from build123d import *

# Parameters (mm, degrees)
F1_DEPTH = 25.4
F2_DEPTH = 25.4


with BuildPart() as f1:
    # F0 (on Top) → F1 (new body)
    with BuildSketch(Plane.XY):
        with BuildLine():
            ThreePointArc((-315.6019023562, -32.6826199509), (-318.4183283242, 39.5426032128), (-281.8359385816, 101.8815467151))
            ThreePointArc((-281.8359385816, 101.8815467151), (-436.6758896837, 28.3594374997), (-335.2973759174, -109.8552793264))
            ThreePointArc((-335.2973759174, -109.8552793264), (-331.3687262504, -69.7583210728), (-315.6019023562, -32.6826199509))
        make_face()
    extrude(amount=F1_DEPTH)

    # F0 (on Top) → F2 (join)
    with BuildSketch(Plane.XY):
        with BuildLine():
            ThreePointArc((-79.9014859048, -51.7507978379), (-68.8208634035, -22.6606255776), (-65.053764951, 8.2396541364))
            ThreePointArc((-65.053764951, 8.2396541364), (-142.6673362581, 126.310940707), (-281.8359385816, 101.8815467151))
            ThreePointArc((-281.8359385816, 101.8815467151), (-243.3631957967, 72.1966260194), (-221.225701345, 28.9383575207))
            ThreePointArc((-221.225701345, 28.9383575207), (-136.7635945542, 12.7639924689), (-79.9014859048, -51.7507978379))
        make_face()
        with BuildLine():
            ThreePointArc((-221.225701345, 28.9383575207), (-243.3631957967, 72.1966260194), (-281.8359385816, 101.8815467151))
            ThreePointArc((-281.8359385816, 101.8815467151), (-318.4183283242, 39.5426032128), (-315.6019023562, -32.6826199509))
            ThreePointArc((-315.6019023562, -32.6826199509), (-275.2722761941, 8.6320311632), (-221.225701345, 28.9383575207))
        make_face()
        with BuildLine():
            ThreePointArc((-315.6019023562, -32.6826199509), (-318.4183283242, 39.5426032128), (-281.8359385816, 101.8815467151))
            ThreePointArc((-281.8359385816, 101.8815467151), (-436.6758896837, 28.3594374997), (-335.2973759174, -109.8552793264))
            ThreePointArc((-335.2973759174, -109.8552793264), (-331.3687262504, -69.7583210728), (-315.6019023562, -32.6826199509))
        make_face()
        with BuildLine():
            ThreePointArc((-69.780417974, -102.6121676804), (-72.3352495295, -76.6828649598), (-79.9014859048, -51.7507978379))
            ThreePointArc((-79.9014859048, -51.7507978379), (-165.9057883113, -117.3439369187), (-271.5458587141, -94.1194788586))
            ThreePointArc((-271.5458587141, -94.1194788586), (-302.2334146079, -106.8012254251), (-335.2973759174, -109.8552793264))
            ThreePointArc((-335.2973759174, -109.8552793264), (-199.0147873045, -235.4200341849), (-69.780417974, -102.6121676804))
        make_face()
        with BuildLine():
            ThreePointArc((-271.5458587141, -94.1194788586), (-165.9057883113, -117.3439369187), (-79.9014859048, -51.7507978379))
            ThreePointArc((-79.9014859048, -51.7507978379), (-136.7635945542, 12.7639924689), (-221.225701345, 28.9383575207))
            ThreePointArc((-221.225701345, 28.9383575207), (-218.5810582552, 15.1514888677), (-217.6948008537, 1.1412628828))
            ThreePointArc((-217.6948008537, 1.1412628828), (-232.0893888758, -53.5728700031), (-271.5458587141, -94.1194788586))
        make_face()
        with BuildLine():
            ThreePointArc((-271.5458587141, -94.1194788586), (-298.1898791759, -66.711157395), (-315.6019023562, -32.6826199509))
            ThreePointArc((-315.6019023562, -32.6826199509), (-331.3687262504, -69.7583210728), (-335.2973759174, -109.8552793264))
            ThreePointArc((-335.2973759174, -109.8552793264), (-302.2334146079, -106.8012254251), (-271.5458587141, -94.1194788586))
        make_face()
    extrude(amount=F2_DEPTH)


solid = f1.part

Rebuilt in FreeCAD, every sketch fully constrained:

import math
import FreeCAD as App
import Part
import Sketcher

V = App.Vector
Q = App.Units.Quantity

doc = App.newDocument("Part")
body = doc.addObject("PartDesign::Body", "Body")

sketch1 = doc.addObject("Sketcher::SketchObject", "Sketch")
body.addObject(sketch1)
sketch1.AttachmentSupport = (doc.XY_Plane, [""])
sketch1.MapMode = "FlatFace"
sketch1.addGeometry([
    Part.ArcOfCircle(Part.Circle(V(-194, 8, 0), V(0, 0, 1), 129), math.radians(133), math.radians(199)),
    Part.ArcOfCircle(Part.Circle(V(-329, 1, 0), V(0, 0, 1), 111), math.radians(65), math.radians(267)),
    Part.ArcOfCircle(Part.Circle(V(-203, -103, 0), V(0, 0, 1), 133), math.radians(148), math.radians(183)),
], False)
sketch1.addConstraint([
    Sketcher.Constraint("Coincident", 0, 1, 1, 1),
    Sketcher.Constraint("Coincident", 1, 2, 2, 2),
    Sketcher.Constraint("Coincident", 2, 1, 0, 2),
    Sketcher.Constraint("Radius", 1, Q("111.182081 mm")),
    Sketcher.Constraint("Radius", 0, Q("128.616006 mm")),
    Sketcher.Constraint("Radius", 2, Q("132.857272 mm")),
    Sketcher.Constraint("DistanceX", 0, 3, -1, 1, Q("193.669771 mm")),
    Sketcher.Constraint("DistanceX", 1, 3, -1, 1, Q("328.876882 mm")),
    Sketcher.Constraint("DistanceX", 2, 3, -1, 1, Q("202.63769 mm")),
    Sketcher.Constraint("DistanceX", 0, 1, -1, 1, Q("281.835939 mm")),
    Sketcher.Constraint("DistanceY", 1, 2, -1, 1, Q("109.855279 mm")),
    Sketcher.Constraint("DistanceY", 2, 1, -1, 1, Q("32.68262 mm")),
])
pad1 = doc.addObject("PartDesign::Pad", "Pad")
body.addObject(pad1)
pad1.Profile = sketch1
pad1.Length = Q("1 in")

sketch2 = doc.addObject("Sketcher::SketchObject", "Sketch001")
body.addObject(sketch2)
sketch2.AttachmentSupport = (doc.XY_Plane, [""])
sketch2.MapMode = "FlatFace"
sketch2.addGeometry([
    Part.ArcOfCircle(Part.Circle(V(-329, 1, 0), V(0, 0, 1), 111), math.radians(65), math.radians(267)),
    Part.ArcOfCircle(Part.Circle(V(-203, -103, 0), V(0, 0, 1), 133), math.radians(-177), math.radians(0)),
    Part.ArcOfCircle(Part.Circle(V(-203, -103, 0), V(0, 0, 1), 133), math.radians(0), math.radians(23)),
    Part.ArcOfCircle(Part.Circle(V(-194, 8, 0), V(0, 0, 1), 129), math.radians(-28), math.radians(0)),
    Part.ArcOfCircle(Part.Circle(V(-194, 8, 0), V(0, 0, 1), 129), math.radians(0), math.radians(133)),
    Part.ArcOfCircle(Part.Circle(V(-329, 1, 0), V(0, 0, 1), 111), math.radians(-59), math.radians(14)),
    Part.ArcOfCircle(Part.Circle(V(-194, 8, 0), V(0, 0, 1), 129), math.radians(-161), math.radians(-127)),
    Part.ArcOfCircle(Part.Circle(V(-203, -103, 0), V(0, 0, 1), 133), math.radians(98), math.radians(148)),
], False)
sketch2.addConstraint([
    Sketcher.Constraint("Coincident", 0, 2, 1, 1),
    Sketcher.Constraint("Tangent", 1, 2, 2, 1),
    Sketcher.Constraint("Coincident", 2, 2, 3, 1),
    Sketcher.Constraint("Tangent", 3, 2, 4, 1),
    Sketcher.Constraint("Coincident", 4, 2, 0, 1),
    Sketcher.Constraint("Coincident", 5, 1, 6, 2),
    Sketcher.Constraint("Coincident", 6, 1, 7, 2),
    Sketcher.Constraint("Coincident", 7, 1, 5, 2),
    Sketcher.Constraint("Coincident", 5, 3, 0, 3),
    Sketcher.Constraint("Coincident", 6, 3, 3, 3),
    Sketcher.Constraint("Coincident", 7, 3, 1, 3),
    Sketcher.Constraint("Equal", 1, 2),
    Sketcher.Constraint("Equal", 3, 4),
    Sketcher.Constraint("Equal", 0, 5),
    Sketcher.Constraint("Equal", 4, 6),
    Sketcher.Constraint("Equal", 2, 7),
    Sketcher.Constraint("Horizontal", 7, 3, 1, 2),
    Sketcher.Constraint("Horizontal", 6, 3, 3, 2),
    Sketcher.Constraint("Radius", 0, Q("111.182081 mm")),
    Sketcher.Constraint("Radius", 1, Q("132.857272 mm")),
    Sketcher.Constraint("Radius", 3, Q("128.616006 mm")),
    Sketcher.Constraint("DistanceX", 7, 1, -1, 1, Q("221.225701 mm")),
    Sketcher.Constraint("DistanceY", 0, 2, 5, 1, Q("15.7358 mm")),
    Sketcher.Constraint("DistanceX", 0, 3, -1, 1, Q("328.876882 mm")),
    Sketcher.Constraint("DistanceX", 1, 3, -1, 1, Q("202.63769 mm")),
    Sketcher.Constraint("DistanceX", 3, 3, -1, 1, Q("193.669771 mm")),
    Sketcher.Constraint("DistanceY", 0, 2, -1, 1, Q("109.855279 mm")),
])
pad2 = doc.addObject("PartDesign::Pad", "Pad001")
body.addObject(pad2)
pad2.Profile = sketch2
pad2.Length = Q("1 in")

doc.recompute()
